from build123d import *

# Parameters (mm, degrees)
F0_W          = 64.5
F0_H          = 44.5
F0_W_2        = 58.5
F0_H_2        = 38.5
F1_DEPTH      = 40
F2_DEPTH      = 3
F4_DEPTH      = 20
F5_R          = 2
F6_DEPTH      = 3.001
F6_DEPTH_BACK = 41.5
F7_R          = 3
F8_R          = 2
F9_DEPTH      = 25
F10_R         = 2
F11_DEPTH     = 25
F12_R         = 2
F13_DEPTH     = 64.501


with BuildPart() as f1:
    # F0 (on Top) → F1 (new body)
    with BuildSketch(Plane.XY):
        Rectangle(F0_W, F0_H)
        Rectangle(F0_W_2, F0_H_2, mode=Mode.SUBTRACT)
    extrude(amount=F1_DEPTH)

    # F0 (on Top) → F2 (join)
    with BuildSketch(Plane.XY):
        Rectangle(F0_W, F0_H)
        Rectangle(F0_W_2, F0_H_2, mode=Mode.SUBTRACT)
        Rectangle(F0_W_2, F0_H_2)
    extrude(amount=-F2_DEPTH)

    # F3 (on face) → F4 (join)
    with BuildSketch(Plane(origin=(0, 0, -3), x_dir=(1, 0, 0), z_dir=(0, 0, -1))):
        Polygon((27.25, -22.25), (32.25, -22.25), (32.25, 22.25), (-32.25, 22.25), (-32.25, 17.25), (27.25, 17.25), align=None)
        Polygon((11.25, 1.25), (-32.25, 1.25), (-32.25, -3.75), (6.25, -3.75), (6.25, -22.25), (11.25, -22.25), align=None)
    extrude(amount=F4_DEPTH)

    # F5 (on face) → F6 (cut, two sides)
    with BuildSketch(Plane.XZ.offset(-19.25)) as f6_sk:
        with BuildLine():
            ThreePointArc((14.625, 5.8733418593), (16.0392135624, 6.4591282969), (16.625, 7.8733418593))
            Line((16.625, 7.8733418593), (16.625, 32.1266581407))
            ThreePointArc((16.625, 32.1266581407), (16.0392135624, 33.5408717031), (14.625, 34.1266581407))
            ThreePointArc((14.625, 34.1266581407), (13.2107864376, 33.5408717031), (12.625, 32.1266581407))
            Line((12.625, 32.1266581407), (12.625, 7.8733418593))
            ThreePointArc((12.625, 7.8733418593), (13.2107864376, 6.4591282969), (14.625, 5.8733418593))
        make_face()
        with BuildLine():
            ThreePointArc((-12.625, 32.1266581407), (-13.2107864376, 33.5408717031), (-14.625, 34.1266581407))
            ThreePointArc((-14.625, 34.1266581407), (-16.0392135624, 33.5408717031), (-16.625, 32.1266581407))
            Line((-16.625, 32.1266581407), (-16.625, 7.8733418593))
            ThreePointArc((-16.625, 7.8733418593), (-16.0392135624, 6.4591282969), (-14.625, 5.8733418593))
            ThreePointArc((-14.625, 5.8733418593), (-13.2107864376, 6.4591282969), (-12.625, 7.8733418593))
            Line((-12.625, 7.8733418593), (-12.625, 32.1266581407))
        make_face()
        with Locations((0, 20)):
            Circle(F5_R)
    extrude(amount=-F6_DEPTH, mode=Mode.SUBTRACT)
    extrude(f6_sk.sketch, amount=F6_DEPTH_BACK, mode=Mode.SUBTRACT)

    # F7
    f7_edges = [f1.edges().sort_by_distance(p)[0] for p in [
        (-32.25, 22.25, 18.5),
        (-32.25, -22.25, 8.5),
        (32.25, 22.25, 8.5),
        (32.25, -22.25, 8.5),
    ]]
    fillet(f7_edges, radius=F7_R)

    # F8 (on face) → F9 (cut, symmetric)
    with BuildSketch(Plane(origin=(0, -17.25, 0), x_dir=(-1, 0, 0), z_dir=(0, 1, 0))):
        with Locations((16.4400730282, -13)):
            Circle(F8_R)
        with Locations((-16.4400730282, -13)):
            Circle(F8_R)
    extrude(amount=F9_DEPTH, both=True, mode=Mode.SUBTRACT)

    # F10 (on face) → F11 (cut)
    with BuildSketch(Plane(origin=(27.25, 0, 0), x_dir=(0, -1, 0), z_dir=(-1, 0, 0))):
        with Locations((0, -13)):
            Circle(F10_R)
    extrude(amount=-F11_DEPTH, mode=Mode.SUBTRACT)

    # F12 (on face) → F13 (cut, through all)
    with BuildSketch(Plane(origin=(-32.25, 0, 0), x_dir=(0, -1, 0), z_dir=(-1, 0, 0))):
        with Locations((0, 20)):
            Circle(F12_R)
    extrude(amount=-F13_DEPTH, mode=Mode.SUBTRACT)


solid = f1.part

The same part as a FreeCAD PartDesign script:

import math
import FreeCAD as App
import Part
import Sketcher


def edges_at(feature, points):
    """Names of the edges that pass closest to the given points."""
    edges = feature.Shape.Edges
    near = lambda p: min(range(len(edges)), key=lambda i: edges[i].distToShape(Part.Vertex(*p))[0])
    return sorted({f"Edge{near(p) + 1}" for p in points})


def add_polygon(sketch, points):
    """Adds a closed chain of lines whose ends are joined by coincident constraints."""
    first, n = sketch.GeometryCount, len(points)
    for a, b in zip(points, points[1:] + points[:1]):
        sketch.addGeometry(Part.LineSegment(App.Vector(*a, 0), App.Vector(*b, 0)), False)
    for i in range(n):
        sketch.addConstraint(Sketcher.Constraint("Coincident", first + i, 2, first + (i + 1) % n, 1))

doc = App.newDocument("Part")
body = doc.addObject("PartDesign::Body", "Body")

# Sketch on XY plane
sketch1 = body.newObject("Sketcher::SketchObject", "Sketch")
sketch1.AttachmentSupport = (doc.getObject("XY_Plane"), [""])
sketch1.MapMode = "FlatFace"
add_polygon(sketch1, [(-32.25, 22.25), (-32.25, -22.25), (32.25, -22.25), (32.25, 22.25)])  # lines 0-3
add_polygon(sketch1, [(29.25, -19.25), (-29.25, -19.25), (-29.25, 19.25), (29.25, 19.25)])  # lines 4-7
sketch1.addConstraint([
    Sketcher.Constraint("Vertical", 0),
    Sketcher.Constraint("Horizontal", 1),
    Sketcher.Constraint("Vertical", 2),
    Sketcher.Constraint("Horizontal", 3),
    Sketcher.Constraint("Horizontal", 4),
    Sketcher.Constraint("Vertical", 5),
    Sketcher.Constraint("Horizontal", 6),
    Sketcher.Constraint("Vertical", 7),
    Sketcher.Constraint("Symmetric", 0, 2, 2, 2, -1, 1),
    Sketcher.Constraint("Symmetric", 4, 2, 6, 2, -1, 1),
    Sketcher.Constraint("DistanceX", 1, 1, 1, 2, 64.5),
    Sketcher.Constraint("DistanceX", 4, 2, 4, 1, 58.5),
    Sketcher.Constraint("DistanceY", 0, 2, 0, 1, 44.5),
    Sketcher.Constraint("DistanceY", 5, 1, 5, 2, 38.5),
])
pad1 = body.newObject("PartDesign::Pad", "Pad")
pad1.Profile = sketch1
pad1.Length = 40

# Sketch on XY plane
sketch2 = body.newObject("Sketcher::SketchObject", "Sketch001")
sketch2.AttachmentSupport = (doc.getObject("XY_Plane"), [""])
sketch2.MapMode = "FlatFace"
add_polygon(sketch2, [(-32.25, 22.25), (-32.25, -22.25), (32.25, -22.25), (32.25, 22.25)])  # lines 0-3
sketch2.addConstraint([
    Sketcher.Constraint("Vertical", 0),
    Sketcher.Constraint("Horizontal", 1),
    Sketcher.Constraint("Vertical", 2),
    Sketcher.Constraint("Horizontal", 3),
    Sketcher.Constraint("Symmetric", 0, 2, 2, 2, -1, 1),
    Sketcher.Constraint("DistanceX", 1, 1, 1, 2, 64.5),
    Sketcher.Constraint("DistanceY", 0, 2, 0, 1, 44.5),
])
pad2 = body.newObject("PartDesign::Pad", "Pad001")
pad2.Profile = sketch2
pad2.Length = 3
pad2.Reversed = True

# Sketch on XY plane
sketch3 = body.newObject("Sketcher::SketchObject", "Sketch002")
sketch3.AttachmentSupport = (doc.getObject("XY_Plane"), [""])
sketch3.MapMode = "FlatFace"
sketch3.AttachmentOffset = App.Placement(App.Vector(0, 0, -3), App.Rotation())
add_polygon(sketch3, [(27.25, 22.25), (32.25, 22.25), (32.25, -22.25), (-32.25, -22.25), (-32.25, -17.25), (27.25, -17.25)])  # lines 0-5
add_polygon(sketch3, [(11.25, -1.25), (-32.25, -1.25), (-32.25, 3.75), (6.25, 3.75), (6.25, 22.25), (11.25, 22.25)])  # lines 6-11
sketch3.addConstraint([
    Sketcher.Constraint("Horizontal", 0),
    Sketcher.Constraint("Vertical", 1),
    Sketcher.Constraint("Horizontal", 2),
    Sketcher.Constraint("Vertical", 3),
    Sketcher.Constraint("Horizontal", 4),
    Sketcher.Constraint("Vertical", 5),
    Sketcher.Constraint("Horizontal", 6),
    Sketcher.Constraint("Vertical", 7),
    Sketcher.Constraint("Horizontal", 8),
    Sketcher.Constraint("Vertical", 9),
    Sketcher.Constraint("Horizontal", 10),
    Sketcher.Constraint("Vertical", 11),
    Sketcher.Constraint("Symmetric", 0, 2, 2, 2, -1, 1),
    Sketcher.Constraint("Horizontal", 5, 2, 9, 2),
    Sketcher.Constraint("Vertical", 3, 2, 6, 2),
    Sketcher.Constraint("Equal", 0, 10),
    Sketcher.Constraint("Equal", 10, 3),
    Sketcher.Constraint("Equal", 3, 7),
    Sketcher.Constraint("DistanceX", 0, 1, 0, 2, 5.0),
    Sketcher.Constraint("DistanceX", 2, 2, 2, 1, 64.5),
    Sketcher.Constraint("DistanceX", 6, 2, 6, 1, 43.5),
    Sketcher.Constraint("DistanceY", 1, 2, 1, 1, 44.5),
    Sketcher.Constraint("DistanceY", 9, 1, 9, 2, 18.5),
])
pad3 = body.newObject("PartDesign::Pad", "Pad002")
pad3.Profile = sketch3
pad3.Length = 20
pad3.Reversed = True

# Sketch on XZ plane
sketch4 = body.newObject("Sketcher::SketchObject", "Sketch003")
sketch4.AttachmentSupport = (doc.getObject("XZ_Plane"), [""])
sketch4.MapMode = "FlatFace"
sketch4.AttachmentOffset = App.Placement(App.Vector(0, 0, -19.25), App.Rotation())
sketch4.addGeometry([
    Part.ArcOfCircle(Part.Circle(App.Vector(14.625, 7.873342, 0), App.Vector(0, 0, 1), 2), math.radians(-90), math.radians(0)),  # 0
    Part.LineSegment(App.Vector(16.625, 7.873342, 0), App.Vector(16.625, 32.126658, 0)),  # 1
    Part.ArcOfCircle(Part.Circle(App.Vector(14.625, 32.126658, 0), App.Vector(0, 0, 1), 2), math.radians(0), math.radians(90)),  # 2
    Part.ArcOfCircle(Part.Circle(App.Vector(14.625, 32.126658, 0), App.Vector(0, 0, 1), 2), math.radians(90), math.radians(180)),  # 3
    Part.LineSegment(App.Vector(12.625, 32.126658, 0), App.Vector(12.625, 7.873342, 0)),  # 4
    Part.ArcOfCircle(Part.Circle(App.Vector(14.625, 7.873342, 0), App.Vector(0, 0, 1), 2), math.radians(180), math.radians(270)),  # 5
    Part.ArcOfCircle(Part.Circle(App.Vector(-14.625, 32.126658, 0), App.Vector(0, 0, 1), 2), math.radians(0), math.radians(90)),  # 6
    Part.ArcOfCircle(Part.Circle(App.Vector(-14.625, 32.126658, 0), App.Vector(0, 0, 1), 2), math.radians(90), math.radians(180)),  # 7
    Part.LineSegment(App.Vector(-16.625, 32.126658, 0), App.Vector(-16.625, 7.873342, 0)),  # 8
    Part.ArcOfCircle(Part.Circle(App.Vector(-14.625, 7.873342, 0), App.Vector(0, 0, 1), 2), math.radians(180), math.radians(270)),  # 9
    Part.ArcOfCircle(Part.Circle(App.Vector(-14.625, 7.873342, 0), App.Vector(0, 0, 1), 2), math.radians(-90), math.radians(0)),  # 10
    Part.LineSegment(App.Vector(-12.625, 7.873342, 0), App.Vector(-12.625, 32.126658, 0)),  # 11
    Part.Circle(App.Vector(0, 20, 0), App.Vector(0, 0, 1), 2),  # 12
], False)
sketch4.addConstraint([
    Sketcher.Constraint("Tangent", 0, 2, 1, 1),
    Sketcher.Constraint("Tangent", 1, 2, 2, 1),
    Sketcher.Constraint("Tangent", 2, 2, 3, 1),
    Sketcher.Constraint("Tangent", 3, 2, 4, 1),
    Sketcher.Constraint("Tangent", 4, 2, 5, 1),
    Sketcher.Constraint("Tangent", 5, 2, 0, 1),
    Sketcher.Constraint("Tangent", 6, 2, 7, 1),
    Sketcher.Constraint("Tangent", 7, 2, 8, 1),
    Sketcher.Constraint("Tangent", 8, 2, 9, 1),
    Sketcher.Constraint("Tangent", 9, 2, 10, 1),
    Sketcher.Constraint("Tangent", 10, 2, 11, 1),
    Sketcher.Constraint("Tangent", 11, 2, 6, 1),
    Sketcher.Constraint("Vertical", 1),
    Sketcher.Constraint("Vertical", 4),
    Sketcher.Constraint("Vertical", 8),
    Sketcher.Constraint("Vertical", 11),
    Sketcher.Constraint("Equal", 0, 2),
    Sketcher.Constraint("Equal", 2, 3),
    Sketcher.Constraint("Equal", 5, 6),
    Sketcher.Constraint("Equal", 6, 7),
    Sketcher.Constraint("Equal", 7, 9),
    Sketcher.Constraint("Equal", 10, 12),
    Sketcher.Constraint("Symmetric", 2, 3, 6, 3, -2),
    Sketcher.Constraint("Symmetric", 5, 2, 9, 2, -2),
    Sketcher.Constraint("PointOnObject", 12, 3, -2),
    Sketcher.Constraint("Vertical", 5, 3, 2, 2),
    Sketcher.Constraint("Vertical", 2, 2, 5, 2),
    Sketcher.Constraint("Vertical", 10, 3, 6, 2),
    Sketcher.Constraint("Diameter", 12, 4.0),
    Sketcher.Constraint("DistanceY", -1, 1, 12, 3, 20.0),
    Sketcher.Constraint("DistanceX", 6, 3, 2, 3, 29.25),
    Sketcher.Constraint("DistanceY", 1, 1, 1, 2, 24.253316),
    Sketcher.Constraint("DistanceY", -1, 1, 0, 3, 7.873342),
])
pocket1 = body.newObject("PartDesign::Pocket", "Pocket")
pocket1.Profile = sketch4
pocket1.Type = "ThroughAll"
pocket1.Midplane = True
doc.recompute()

fillet = body.newObject("PartDesign::Fillet", "Fillet")
fillet.Base = (pocket1, edges_at(pocket1, [
    (-32.25, 22.25, 18.5),
    (-32.25, -22.25, 8.5),
    (32.25, 22.25, 8.5),
    (32.25, -22.25, 8.5),
]))
fillet.Radius = 3

# Sketch on XZ plane
sketch5 = body.newObject("Sketcher::SketchObject", "Sketch004")
sketch5.AttachmentSupport = (doc.getObject("XZ_Plane"), [""])
sketch5.MapMode = "FlatFace"
sketch5.AttachmentOffset = App.Placement(App.Vector(0, 0, 17.25), App.Rotation())
sketch5.addGeometry([
    Part.Circle(App.Vector(-16.440073, -13, 0), App.Vector(0, 0, 1), 2),
    Part.Circle(App.Vector(16.440073, -13, 0), App.Vector(0, 0, 1), 2),
], False)
sketch5.addConstraint([
    Sketcher.Constraint("Equal", 0, 1),
    Sketcher.Constraint("Symmetric", 0, 3, 1, 3, -2),
    Sketcher.Constraint("Diameter", 0, 4.0),
    Sketcher.Constraint("DistanceY", 0, 3, -1, 1, 13.0),
    Sketcher.Constraint("DistanceX", 0, 3, -1, 1, 16.440073),
])
pocket2 = body.newObject("PartDesign::Pocket", "Pocket001")
pocket2.Profile = sketch5
pocket2.Length = 50
pocket2.Midplane = True

# Sketch on YZ plane
sketch6 = body.newObject("Sketcher::SketchObject", "Sketch005")
sketch6.AttachmentSupport = (doc.getObject("YZ_Plane"), [""])
sketch6.MapMode = "FlatFace"
sketch6.AttachmentOffset = App.Placement(App.Vector(0, 0, 27.25), App.Rotation())
sketch6.addGeometry(Part.Circle(App.Vector(0, -13, 0), App.Vector(0, 0, 1), 2), False)
sketch6.addConstraint([
    Sketcher.Constraint("PointOnObject", 0, 3, -2),
    Sketcher.Constraint("Diameter", 0, 4.0),
    Sketcher.Constraint("DistanceY", 0, 3, -1, 1, 13.0),
])
pocket3 = body.newObject("PartDesign::Pocket", "Pocket002")
pocket3.Profile = sketch6
pocket3.Length = 25
pocket3.Reversed = True

# Sketch on YZ plane
sketch7 = body.newObject("Sketcher::SketchObject", "Sketch006")
sketch7.AttachmentSupport = (doc.getObject("YZ_Plane"), [""])
sketch7.MapMode = "FlatFace"
sketch7.AttachmentOffset = App.Placement(App.Vector(0, 0, -32.25), App.Rotation())
sketch7.addGeometry(Part.Circle(App.Vector(0, 20, 0), App.Vector(0, 0, 1), 2), False)
sketch7.addConstraint([
    Sketcher.Constraint("PointOnObject", 0, 3, -2),
    Sketcher.Constraint("Diameter", 0, 4.0),
    Sketcher.Constraint("DistanceY", -1, 1, 0, 3, 20.0),
])
pocket4 = body.newObject("PartDesign::Pocket", "Pocket003")
pocket4.Profile = sketch7
pocket4.Type = "ThroughAll"
pocket4.Reversed = True

doc.recompute()
